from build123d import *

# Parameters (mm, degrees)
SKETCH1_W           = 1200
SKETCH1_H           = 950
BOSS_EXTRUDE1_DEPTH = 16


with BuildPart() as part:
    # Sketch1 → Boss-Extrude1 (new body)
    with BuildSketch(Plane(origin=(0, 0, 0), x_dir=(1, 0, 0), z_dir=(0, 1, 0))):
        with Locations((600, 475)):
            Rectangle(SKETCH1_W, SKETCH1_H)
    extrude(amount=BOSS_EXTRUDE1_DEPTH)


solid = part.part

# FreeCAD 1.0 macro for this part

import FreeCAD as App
import Part
import Sketcher
from FreeCAD import Vector
Q = App.Units.Quantity

doc = App.newDocument("Part")
params = doc.addObject("Spreadsheet::Sheet", "Params")
for row, (alias, value) in enumerate([
    ("sketch1_width", "1200 mm"),
    ("sketch1_height", "950 mm"),
    ("pad1_length", "16 mm"),
], start=1):
    params.set(f"A{row}", alias)
    params.set(f"B{row}", "=" + value)
    params.setAlias(f"B{row}", alias)

body = doc.addObject("PartDesign::Body", "Body")

# Sketch on XZ plane
sketch1 = doc.addObject("Sketcher::SketchObject", "Sketch")
body.addObject(sketch1)
sketch1.AttachmentSupport = (doc.XZ_Plane, [""])
sketch1.MapMode = "FlatFace"
sketch1.addGeometry([
    Part.LineSegment(Vector(0, -950, 0), Vector(0, 0, 0)),
    Part.LineSegment(Vector(0, 0, 0), Vector(1200, 0, 0)),
    Part.LineSegment(Vector(1200, 0, 0), Vector(1200, -950, 0)),
    Part.LineSegment(Vector(1200, -950, 0), Vector(0, -950, 0)),
], False)
sketch1.addConstraint([
    Sketcher.Constraint("Coincident", 0, 2, 1, 1),
    Sketcher.Constraint("Coincident", 1, 2, 2, 1),
    Sketcher.Constraint("Coincident", 2, 2, 3, 1),
    Sketcher.Constraint("Coincident", 3, 2, 0, 1),
    Sketcher.Constraint("Vertical", 0),
    Sketcher.Constraint("Horizontal", 1),
    Sketcher.Constraint("Vertical", 2),
    Sketcher.Constraint("Horizontal", 3),
    Sketcher.Constraint("Coincident", 0, 2, -1, 1),
    Sketcher.Constraint("DistanceX", 1, 1, 1, 2, Q("1200 mm")),
    Sketcher.Constraint("DistanceY", 0, 1, 0, 2, Q("950 mm")),
])
sketch1.setExpression("Constraints[9]", "Params.sketch1_width")
sketch1.setExpression("Constraints[10]", "Params.sketch1_height")
pad1 = doc.addObject("PartDesign::Pad", "Pad")
body.addObject(pad1)
pad1.Profile = sketch1
pad1.setExpression("Length", "Params.pad1_length")
pad1.Reversed = True

doc.recompute()
